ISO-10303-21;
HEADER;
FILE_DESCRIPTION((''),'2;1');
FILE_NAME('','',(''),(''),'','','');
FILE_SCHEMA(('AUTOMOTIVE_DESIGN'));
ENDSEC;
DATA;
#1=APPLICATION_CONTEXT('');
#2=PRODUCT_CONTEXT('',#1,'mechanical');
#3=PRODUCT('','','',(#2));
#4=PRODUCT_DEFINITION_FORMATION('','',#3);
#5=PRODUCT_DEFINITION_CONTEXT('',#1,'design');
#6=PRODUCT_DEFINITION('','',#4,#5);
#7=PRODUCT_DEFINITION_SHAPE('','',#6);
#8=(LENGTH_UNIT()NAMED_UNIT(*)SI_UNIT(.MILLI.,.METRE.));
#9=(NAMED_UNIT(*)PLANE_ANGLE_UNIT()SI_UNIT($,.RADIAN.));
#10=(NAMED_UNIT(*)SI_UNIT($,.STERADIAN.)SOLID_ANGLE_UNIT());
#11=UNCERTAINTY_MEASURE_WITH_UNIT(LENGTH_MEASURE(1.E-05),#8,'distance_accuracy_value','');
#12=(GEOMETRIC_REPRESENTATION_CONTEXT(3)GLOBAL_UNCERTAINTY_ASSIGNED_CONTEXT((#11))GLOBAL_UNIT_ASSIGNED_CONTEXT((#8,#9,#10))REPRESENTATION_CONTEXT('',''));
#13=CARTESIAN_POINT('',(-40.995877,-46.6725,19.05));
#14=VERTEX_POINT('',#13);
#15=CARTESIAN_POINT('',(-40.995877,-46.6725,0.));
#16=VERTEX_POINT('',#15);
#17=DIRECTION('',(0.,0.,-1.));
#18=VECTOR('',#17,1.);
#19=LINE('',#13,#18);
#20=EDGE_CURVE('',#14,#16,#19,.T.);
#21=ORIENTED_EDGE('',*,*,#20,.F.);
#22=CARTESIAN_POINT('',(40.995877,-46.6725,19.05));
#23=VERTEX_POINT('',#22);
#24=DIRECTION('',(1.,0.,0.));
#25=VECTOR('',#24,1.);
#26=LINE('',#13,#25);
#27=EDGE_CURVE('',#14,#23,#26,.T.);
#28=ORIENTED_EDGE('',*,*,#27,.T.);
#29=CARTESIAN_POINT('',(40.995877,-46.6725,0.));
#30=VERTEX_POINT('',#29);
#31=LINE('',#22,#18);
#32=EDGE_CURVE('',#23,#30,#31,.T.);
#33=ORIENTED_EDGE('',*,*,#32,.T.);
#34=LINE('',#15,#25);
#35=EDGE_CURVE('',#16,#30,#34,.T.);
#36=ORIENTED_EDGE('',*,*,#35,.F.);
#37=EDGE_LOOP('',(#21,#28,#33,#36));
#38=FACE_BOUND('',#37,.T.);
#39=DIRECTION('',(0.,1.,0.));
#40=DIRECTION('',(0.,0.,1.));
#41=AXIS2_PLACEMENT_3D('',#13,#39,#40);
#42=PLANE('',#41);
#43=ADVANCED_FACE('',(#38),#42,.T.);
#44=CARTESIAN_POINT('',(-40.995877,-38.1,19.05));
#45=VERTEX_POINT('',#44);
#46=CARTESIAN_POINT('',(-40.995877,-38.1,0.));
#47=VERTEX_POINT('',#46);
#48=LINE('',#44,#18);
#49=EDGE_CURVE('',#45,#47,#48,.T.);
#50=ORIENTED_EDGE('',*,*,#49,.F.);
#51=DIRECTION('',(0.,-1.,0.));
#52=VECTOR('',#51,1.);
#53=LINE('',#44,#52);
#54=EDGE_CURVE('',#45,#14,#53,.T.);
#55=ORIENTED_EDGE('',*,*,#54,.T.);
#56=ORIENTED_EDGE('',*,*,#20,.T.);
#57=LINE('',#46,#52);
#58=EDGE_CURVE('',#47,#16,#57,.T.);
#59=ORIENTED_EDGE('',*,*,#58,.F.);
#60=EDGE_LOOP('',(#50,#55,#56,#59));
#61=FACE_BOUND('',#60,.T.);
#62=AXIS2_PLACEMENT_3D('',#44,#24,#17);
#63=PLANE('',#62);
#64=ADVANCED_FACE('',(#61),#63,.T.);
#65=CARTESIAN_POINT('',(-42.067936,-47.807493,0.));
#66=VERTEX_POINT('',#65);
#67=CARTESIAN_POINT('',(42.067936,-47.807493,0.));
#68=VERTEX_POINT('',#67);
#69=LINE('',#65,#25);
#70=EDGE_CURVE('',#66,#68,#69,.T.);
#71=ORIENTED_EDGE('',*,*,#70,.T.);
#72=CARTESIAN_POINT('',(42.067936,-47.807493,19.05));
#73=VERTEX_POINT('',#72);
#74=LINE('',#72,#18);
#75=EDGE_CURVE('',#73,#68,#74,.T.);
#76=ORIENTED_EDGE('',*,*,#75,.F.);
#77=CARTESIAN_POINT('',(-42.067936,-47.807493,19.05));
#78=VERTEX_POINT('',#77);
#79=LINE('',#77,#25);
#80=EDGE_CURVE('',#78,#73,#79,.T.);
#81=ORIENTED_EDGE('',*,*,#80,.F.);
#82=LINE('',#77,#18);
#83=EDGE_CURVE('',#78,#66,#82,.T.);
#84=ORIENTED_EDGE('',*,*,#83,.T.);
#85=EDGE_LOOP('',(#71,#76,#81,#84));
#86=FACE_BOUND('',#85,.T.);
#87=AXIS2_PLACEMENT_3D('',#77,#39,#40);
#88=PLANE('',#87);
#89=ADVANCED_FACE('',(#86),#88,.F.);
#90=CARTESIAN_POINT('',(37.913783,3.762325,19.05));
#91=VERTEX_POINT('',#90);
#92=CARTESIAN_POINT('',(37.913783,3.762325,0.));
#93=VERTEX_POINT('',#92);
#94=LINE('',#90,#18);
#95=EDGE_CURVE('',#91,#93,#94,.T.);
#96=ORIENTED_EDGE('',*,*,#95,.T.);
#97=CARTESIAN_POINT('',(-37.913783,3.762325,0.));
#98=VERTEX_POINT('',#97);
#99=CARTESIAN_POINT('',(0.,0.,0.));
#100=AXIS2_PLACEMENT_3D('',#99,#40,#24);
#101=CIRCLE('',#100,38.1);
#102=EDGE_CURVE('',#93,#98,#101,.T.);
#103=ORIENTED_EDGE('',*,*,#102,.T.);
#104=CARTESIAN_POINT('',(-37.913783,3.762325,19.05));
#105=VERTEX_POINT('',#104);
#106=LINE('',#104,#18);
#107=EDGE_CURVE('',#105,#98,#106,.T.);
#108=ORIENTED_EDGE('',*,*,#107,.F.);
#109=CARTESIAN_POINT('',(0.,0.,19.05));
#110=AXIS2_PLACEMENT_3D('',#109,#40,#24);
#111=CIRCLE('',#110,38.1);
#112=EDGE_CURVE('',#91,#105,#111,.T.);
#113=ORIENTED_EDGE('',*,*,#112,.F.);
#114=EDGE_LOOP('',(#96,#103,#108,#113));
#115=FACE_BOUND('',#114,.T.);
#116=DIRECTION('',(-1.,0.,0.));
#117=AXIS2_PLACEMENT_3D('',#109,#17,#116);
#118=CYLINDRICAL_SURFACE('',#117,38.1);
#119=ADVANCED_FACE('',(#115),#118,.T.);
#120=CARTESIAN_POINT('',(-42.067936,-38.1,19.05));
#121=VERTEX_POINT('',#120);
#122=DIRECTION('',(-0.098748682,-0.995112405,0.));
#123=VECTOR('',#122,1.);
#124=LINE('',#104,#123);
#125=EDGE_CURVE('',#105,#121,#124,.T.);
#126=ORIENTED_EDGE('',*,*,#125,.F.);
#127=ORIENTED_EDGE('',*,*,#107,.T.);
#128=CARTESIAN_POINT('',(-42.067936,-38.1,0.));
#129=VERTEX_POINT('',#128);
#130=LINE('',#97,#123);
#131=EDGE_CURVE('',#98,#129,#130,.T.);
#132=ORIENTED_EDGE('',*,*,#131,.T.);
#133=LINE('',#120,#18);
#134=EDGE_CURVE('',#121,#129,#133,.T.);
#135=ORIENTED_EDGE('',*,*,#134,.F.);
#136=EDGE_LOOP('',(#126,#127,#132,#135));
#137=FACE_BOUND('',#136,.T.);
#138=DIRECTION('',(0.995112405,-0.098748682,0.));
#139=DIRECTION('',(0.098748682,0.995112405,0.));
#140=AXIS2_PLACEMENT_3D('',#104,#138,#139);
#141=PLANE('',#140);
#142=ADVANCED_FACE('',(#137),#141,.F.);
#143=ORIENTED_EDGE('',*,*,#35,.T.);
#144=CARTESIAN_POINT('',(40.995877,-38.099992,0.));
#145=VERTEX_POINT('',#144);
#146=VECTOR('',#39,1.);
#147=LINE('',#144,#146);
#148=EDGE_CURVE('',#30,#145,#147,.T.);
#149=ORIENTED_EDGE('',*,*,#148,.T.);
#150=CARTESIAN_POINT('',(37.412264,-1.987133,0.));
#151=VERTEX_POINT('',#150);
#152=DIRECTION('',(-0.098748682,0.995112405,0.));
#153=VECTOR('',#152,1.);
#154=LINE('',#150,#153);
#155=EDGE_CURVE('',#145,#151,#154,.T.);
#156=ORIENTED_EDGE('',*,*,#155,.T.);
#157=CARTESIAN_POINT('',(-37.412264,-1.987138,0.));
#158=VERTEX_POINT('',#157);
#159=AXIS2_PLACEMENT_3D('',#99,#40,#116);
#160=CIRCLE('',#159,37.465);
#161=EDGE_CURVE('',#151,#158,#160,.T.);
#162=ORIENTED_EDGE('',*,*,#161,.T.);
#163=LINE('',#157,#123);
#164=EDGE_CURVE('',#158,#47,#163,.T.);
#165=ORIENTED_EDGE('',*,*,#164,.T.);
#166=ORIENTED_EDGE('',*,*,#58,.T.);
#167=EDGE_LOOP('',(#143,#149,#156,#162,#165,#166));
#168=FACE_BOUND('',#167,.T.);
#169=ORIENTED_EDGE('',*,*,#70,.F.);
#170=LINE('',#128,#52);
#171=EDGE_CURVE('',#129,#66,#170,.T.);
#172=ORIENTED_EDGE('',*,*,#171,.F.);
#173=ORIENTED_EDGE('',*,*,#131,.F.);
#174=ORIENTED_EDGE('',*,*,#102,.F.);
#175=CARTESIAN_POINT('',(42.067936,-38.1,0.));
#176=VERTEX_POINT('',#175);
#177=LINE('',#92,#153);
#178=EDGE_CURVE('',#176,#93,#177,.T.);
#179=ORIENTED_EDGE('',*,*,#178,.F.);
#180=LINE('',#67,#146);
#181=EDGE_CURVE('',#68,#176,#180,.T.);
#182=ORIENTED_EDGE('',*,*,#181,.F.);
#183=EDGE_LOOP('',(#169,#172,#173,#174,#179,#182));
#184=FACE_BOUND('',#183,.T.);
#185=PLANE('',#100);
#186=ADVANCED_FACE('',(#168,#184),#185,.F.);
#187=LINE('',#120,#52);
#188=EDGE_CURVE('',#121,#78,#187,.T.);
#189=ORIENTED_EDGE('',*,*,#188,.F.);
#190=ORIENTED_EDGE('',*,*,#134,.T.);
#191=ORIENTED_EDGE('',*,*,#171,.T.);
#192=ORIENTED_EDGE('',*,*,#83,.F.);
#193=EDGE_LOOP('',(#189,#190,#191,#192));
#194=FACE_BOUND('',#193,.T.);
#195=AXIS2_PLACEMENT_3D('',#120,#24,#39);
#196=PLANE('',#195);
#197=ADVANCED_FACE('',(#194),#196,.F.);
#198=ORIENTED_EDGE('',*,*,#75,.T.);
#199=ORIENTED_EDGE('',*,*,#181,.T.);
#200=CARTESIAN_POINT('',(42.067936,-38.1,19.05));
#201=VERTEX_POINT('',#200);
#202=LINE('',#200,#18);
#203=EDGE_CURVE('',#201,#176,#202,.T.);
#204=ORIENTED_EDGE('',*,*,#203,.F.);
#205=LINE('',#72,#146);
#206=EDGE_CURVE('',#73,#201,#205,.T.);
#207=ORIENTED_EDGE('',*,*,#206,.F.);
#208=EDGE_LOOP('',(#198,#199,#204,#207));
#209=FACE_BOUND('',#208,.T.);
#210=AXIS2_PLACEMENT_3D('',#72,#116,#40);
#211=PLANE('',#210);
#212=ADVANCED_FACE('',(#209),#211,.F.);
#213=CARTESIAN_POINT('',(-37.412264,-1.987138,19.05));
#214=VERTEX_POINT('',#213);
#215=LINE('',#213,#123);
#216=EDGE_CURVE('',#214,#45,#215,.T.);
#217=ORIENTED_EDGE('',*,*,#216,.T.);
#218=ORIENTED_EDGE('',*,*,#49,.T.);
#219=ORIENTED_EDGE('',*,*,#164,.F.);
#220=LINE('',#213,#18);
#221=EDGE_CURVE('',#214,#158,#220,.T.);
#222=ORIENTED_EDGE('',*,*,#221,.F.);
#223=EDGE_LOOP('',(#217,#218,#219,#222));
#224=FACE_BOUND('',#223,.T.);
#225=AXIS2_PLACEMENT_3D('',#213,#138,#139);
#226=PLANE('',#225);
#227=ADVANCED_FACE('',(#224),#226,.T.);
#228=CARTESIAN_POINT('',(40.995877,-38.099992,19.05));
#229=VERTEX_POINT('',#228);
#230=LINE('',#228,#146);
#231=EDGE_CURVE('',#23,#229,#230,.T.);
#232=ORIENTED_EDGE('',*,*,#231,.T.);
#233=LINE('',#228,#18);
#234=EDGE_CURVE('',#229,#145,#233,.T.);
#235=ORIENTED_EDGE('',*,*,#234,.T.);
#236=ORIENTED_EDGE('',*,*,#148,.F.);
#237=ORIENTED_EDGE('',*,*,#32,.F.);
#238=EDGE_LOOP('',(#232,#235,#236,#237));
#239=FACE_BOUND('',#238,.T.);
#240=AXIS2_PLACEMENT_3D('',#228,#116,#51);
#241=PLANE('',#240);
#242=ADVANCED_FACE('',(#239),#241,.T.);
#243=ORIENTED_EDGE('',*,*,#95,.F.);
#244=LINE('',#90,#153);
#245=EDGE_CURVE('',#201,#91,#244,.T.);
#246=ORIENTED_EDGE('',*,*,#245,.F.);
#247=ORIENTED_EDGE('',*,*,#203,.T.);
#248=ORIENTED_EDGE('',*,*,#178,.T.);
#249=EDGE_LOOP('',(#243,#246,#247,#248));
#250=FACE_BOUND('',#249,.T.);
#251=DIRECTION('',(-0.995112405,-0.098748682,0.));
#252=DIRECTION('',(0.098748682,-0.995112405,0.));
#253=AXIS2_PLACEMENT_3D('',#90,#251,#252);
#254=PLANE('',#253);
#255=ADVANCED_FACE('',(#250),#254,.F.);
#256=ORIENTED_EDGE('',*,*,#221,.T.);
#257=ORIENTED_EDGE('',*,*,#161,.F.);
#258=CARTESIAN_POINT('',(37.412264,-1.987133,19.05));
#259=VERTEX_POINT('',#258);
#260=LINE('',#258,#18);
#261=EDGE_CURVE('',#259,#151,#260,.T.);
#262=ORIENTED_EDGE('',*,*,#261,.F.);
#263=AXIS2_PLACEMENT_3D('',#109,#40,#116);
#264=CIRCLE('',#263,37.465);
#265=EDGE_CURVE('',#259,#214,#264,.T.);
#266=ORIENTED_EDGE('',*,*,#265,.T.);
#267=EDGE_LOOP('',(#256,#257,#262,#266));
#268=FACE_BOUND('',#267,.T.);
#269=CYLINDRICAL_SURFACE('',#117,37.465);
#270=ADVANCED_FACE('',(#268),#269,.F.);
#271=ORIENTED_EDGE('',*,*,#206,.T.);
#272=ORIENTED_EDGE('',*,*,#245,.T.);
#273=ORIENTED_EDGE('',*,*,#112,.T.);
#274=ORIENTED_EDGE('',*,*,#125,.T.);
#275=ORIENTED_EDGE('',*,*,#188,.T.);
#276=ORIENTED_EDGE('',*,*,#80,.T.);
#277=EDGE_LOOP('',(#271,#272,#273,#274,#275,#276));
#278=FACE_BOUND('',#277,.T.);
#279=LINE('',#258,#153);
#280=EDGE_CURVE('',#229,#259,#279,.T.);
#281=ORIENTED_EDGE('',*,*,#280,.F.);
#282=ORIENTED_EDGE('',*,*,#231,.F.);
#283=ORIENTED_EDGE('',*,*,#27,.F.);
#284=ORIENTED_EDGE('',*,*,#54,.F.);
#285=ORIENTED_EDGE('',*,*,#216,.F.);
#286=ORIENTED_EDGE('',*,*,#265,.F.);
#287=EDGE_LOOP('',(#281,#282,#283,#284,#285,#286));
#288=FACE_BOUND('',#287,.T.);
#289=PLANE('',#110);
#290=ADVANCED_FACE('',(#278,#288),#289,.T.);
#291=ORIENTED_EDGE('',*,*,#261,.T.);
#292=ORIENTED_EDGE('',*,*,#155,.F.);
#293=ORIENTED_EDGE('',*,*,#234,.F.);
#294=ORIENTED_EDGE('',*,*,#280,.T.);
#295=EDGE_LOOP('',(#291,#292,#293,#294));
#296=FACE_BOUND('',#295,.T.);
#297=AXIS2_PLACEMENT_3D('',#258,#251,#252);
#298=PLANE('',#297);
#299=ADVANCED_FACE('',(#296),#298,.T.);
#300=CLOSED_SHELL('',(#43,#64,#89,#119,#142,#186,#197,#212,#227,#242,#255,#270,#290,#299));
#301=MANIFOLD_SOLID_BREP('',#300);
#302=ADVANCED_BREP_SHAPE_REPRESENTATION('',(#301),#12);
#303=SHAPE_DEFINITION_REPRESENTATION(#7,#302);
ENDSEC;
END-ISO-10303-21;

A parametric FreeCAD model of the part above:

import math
import FreeCAD as App
import Part
import Sketcher
from FreeCAD import Vector
Q = App.Units.Quantity

doc = App.newDocument("Part")
body = doc.addObject("PartDesign::Body", "Body")

# Sketch on XY plane
sketch1 = body.newObject("Sketcher::SketchObject", "Sketch")
sketch1.AttachmentSupport = (doc.getObject("XY_Plane"), [""])
sketch1.MapMode = "FlatFace"
sketch1.addGeometry([
    Part.LineSegment(Vector(-37.913783, 3.762325, 0), Vector(-42.067936, -38.1, 0)),  # 0
    Part.LineSegment(Vector(-42.067936, -38.1, 0), Vector(-42.067936, -47.807493, 0)),  # 1
    Part.LineSegment(Vector(-42.067936, -47.807493, 0), Vector(42.067936, -47.807493, 0)),  # 2
    Part.LineSegment(Vector(42.067936, -47.807493, 0), Vector(42.067936, -38.1, 0)),  # 3
    Part.LineSegment(Vector(42.067936, -38.1, 0), Vector(37.913783, 3.762325, 0)),  # 4
    Part.ArcOfCircle(Part.Circle(Vector(0, 0, 0), Vector(0, 0, 1), 38.1), math.radians(5.667119), math.radians(174.332881)),  # 5
    Part.LineSegment(Vector(-40.995877, -38.1, 0), Vector(-37.412264, -1.987138, 0)),  # 6
    Part.ArcOfCircle(Part.Circle(Vector(0, 0, 0), Vector(0, 0, 1), 37.465), math.radians(-3.040378), math.radians(183.040386)),  # 7
    Part.LineSegment(Vector(37.412264, -1.987133, 0), Vector(40.995877, -38.099992, 0)),  # 8
    Part.LineSegment(Vector(40.995877, -38.099992, 0), Vector(40.995877, -46.6725, 0)),  # 9
    Part.LineSegment(Vector(40.995877, -46.6725, 0), Vector(-40.995877, -46.6725, 0)),  # 10
    Part.LineSegment(Vector(-40.995877, -46.6725, 0), Vector(-40.995877, -38.1, 0)),  # 11
], False)
sketch1.addConstraint([
    Sketcher.Constraint("Coincident", 0, 2, 1, 1),
    Sketcher.Constraint("Coincident", 1, 2, 2, 1),
    Sketcher.Constraint("Coincident", 2, 2, 3, 1),
    Sketcher.Constraint("Coincident", 3, 2, 4, 1),
    Sketcher.Constraint("Tangent", 4, 2, 5, 1),
    Sketcher.Constraint("Tangent", 5, 2, 0, 1),
    Sketcher.Constraint("Coincident", 6, 2, 7, 2),
    Sketcher.Constraint("Coincident", 7, 1, 8, 1),
    Sketcher.Constraint("Coincident", 8, 2, 9, 1),
    Sketcher.Constraint("Coincident", 9, 2, 10, 1),
    Sketcher.Constraint("Coincident", 10, 2, 11, 1),
    Sketcher.Constraint("Coincident", 11, 2, 6, 1),
    Sketcher.Constraint("Vertical", 1),
    Sketcher.Constraint("Horizontal", 2),
    Sketcher.Constraint("Vertical", 3),
    Sketcher.Constraint("Vertical", 9),
    Sketcher.Constraint("Horizontal", 10),
    Sketcher.Constraint("Vertical", 11),
    Sketcher.Constraint("Coincident", 5, 3, -1, 1),
    Sketcher.Constraint("Coincident", 7, 3, -1, 1),
    Sketcher.Constraint("Symmetric", 0, 2, 3, 2, -2),
    Sketcher.Constraint("Symmetric", 8, 2, 11, 2, -2),
    Sketcher.Constraint("Parallel", 0, 6),
    Sketcher.Constraint("Parallel", 4, 8),
    Sketcher.Constraint("Horizontal", 3, 2, 11, 2),
    Sketcher.Constraint("Radius", 5, Q("1.5 in")),
    Sketcher.Constraint("Radius", 7, Q("1.475 in")),
    Sketcher.Constraint("DistanceY", 0, 2, -1, 1, Q("1.5 in")),
    Sketcher.Constraint("DistanceY", 11, 1, 11, 2, Q("0.3375 in")),
    Sketcher.Constraint("DistanceX", 2, 1, 2, 2, 84.135872),
    Sketcher.Constraint("DistanceY", 2, 2, 8, 2, 9.707501),
    Sketcher.Constraint("Distance", 8, 36.290232),
])
pad1 = body.newObject("PartDesign::Pad", "Pad")
pad1.Profile = sketch1
pad1.Length = Q("0.75 in")

doc.recompute()
